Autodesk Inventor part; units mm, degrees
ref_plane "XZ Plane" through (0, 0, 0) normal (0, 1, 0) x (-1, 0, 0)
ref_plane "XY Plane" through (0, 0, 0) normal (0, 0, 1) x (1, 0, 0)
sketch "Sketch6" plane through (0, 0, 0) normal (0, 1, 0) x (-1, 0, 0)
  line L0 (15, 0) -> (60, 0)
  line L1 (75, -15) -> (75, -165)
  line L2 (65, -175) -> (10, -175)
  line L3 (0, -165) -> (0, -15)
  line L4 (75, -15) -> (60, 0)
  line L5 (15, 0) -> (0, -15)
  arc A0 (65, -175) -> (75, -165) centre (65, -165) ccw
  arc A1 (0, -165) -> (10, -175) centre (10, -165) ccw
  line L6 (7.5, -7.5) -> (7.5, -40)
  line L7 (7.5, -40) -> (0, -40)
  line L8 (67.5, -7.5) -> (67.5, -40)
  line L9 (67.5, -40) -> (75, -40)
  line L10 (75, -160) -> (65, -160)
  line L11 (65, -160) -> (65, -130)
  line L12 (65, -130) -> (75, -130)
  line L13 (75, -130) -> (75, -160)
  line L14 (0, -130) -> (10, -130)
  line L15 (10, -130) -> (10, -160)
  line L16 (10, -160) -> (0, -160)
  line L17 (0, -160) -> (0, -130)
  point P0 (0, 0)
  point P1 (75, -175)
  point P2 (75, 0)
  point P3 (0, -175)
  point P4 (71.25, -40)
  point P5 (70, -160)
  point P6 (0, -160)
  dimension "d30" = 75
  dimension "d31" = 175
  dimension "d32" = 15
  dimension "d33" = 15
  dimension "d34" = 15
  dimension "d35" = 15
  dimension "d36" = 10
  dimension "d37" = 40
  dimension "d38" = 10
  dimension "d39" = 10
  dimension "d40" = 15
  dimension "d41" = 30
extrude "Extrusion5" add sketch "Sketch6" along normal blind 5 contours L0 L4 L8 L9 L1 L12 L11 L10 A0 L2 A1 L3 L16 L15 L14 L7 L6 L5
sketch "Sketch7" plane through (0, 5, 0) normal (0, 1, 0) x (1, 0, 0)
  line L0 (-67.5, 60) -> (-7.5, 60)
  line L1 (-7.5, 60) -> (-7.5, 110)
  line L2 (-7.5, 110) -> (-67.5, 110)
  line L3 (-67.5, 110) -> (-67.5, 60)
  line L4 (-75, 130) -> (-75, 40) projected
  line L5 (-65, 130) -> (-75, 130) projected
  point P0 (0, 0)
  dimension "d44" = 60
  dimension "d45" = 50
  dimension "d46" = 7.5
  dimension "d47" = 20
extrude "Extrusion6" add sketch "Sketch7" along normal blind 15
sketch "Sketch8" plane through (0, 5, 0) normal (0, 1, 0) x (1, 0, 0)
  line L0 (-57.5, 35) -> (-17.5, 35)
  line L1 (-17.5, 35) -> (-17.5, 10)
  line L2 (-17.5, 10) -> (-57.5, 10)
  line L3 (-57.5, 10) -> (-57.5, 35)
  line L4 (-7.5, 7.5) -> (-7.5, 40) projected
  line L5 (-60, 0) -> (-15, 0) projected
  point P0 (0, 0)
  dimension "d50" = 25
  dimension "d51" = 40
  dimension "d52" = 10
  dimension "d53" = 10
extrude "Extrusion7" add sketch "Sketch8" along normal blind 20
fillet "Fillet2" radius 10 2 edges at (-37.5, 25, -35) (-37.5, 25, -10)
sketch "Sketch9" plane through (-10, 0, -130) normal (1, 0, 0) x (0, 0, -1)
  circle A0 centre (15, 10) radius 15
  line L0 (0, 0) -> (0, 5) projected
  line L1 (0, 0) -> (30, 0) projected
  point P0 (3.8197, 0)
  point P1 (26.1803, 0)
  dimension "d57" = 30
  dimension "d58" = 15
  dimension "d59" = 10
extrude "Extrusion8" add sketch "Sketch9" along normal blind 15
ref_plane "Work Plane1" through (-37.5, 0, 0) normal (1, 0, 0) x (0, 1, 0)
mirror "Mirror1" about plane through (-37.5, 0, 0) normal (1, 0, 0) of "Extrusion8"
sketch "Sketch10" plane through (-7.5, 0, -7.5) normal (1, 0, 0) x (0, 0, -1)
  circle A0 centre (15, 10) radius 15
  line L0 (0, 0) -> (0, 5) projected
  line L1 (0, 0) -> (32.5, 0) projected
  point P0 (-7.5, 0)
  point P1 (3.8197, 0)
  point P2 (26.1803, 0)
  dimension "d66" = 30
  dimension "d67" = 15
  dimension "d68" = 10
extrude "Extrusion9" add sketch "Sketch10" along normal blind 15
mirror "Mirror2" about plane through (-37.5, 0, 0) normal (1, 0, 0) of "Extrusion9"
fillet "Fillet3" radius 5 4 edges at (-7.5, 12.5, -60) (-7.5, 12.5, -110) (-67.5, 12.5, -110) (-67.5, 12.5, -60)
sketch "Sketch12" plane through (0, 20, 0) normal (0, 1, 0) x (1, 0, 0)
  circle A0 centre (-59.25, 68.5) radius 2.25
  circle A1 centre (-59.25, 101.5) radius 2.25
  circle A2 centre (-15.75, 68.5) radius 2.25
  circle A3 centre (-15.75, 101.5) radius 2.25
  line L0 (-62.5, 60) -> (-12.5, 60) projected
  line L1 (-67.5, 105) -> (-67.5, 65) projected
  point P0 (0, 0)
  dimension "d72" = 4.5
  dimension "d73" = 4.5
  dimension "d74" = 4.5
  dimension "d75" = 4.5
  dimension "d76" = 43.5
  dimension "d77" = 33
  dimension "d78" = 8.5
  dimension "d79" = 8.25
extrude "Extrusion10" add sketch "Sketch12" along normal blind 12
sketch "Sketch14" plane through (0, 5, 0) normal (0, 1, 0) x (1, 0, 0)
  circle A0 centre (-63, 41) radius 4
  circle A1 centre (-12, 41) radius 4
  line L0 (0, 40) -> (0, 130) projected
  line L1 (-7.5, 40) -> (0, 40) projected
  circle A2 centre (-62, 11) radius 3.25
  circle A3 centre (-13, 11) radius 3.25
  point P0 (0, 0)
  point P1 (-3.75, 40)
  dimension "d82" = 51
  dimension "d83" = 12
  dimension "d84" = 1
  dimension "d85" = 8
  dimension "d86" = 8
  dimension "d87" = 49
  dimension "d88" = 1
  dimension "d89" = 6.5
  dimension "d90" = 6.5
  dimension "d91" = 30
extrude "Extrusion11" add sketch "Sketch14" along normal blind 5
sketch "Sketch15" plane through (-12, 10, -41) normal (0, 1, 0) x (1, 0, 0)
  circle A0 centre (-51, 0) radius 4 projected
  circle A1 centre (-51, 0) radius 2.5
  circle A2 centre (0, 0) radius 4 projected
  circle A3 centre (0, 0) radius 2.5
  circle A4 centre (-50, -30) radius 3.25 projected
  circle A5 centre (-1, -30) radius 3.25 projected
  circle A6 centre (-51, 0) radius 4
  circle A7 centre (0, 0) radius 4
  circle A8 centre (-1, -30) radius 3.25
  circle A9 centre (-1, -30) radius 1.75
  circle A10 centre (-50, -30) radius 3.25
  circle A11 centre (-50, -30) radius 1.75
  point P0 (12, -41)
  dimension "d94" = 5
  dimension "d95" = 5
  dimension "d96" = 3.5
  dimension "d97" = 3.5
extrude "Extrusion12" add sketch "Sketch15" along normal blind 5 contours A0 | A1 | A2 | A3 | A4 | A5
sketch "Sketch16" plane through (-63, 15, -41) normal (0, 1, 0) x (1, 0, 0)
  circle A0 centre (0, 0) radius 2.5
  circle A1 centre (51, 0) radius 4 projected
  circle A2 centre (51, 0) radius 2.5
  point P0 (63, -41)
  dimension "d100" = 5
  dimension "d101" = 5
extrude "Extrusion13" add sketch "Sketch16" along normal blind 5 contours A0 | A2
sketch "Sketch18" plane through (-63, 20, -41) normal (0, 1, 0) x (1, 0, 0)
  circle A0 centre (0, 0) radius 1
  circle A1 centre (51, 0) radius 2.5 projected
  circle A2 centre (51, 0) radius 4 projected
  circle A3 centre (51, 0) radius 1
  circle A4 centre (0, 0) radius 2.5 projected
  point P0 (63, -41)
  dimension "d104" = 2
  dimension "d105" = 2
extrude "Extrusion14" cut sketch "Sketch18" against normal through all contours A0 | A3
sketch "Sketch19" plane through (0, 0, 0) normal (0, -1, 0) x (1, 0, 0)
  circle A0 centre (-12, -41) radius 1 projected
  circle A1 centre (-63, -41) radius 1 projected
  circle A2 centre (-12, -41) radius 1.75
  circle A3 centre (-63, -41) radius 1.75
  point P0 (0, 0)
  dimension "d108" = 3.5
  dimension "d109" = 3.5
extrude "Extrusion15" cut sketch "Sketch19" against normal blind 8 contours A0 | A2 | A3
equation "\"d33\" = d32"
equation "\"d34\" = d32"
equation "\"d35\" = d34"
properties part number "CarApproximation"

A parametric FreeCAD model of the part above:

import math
import FreeCAD as App
import Part
import Sketcher


def edges_at(feature, points):
    """Names of the edges that pass closest to the given points."""
    edges = feature.Shape.Edges
    near = lambda p: min(range(len(edges)), key=lambda i: edges[i].distToShape(Part.Vertex(*p))[0])
    return sorted({f"Edge{near(p) + 1}" for p in points})

doc = App.newDocument("Part")
body = doc.addObject("PartDesign::Body", "Body")

sketch1 = body.newObject("Sketcher::SketchObject", "Sketch")
sketch1.AttachmentSupport = (doc.getObject("XZ_Plane"), [""])
sketch1.MapMode = "FlatFace"
sketch1.addGeometry([
    Part.LineSegment(App.Vector(-60, 0, 0), App.Vector(-15, 0, 0)),
    Part.LineSegment(App.Vector(-15, 0, 0), App.Vector(-8, -8, 0)),
    Part.LineSegment(App.Vector(-8, -8, 0), App.Vector(-8, -40, 0)),
    Part.LineSegment(App.Vector(-8, -40, 0), App.Vector(0, -40, 0)),
    Part.LineSegment(App.Vector(0, -40, 0), App.Vector(0, -130, 0)),
    Part.LineSegment(App.Vector(0, -130, 0), App.Vector(-10, -130, 0)),
    Part.LineSegment(App.Vector(-10, -130, 0), App.Vector(-10, -160, 0)),
    Part.LineSegment(App.Vector(-10, -160, 0), App.Vector(0, -160, 0)),
    Part.LineSegment(App.Vector(0, -160, 0), App.Vector(0, -165, 0)),
    Part.ArcOfCircle(Part.Circle(App.Vector(-10, -165, 0), App.Vector(0, 0, 1), 10), math.radians(-90), math.radians(0)),
    Part.LineSegment(App.Vector(-10, -175, 0), App.Vector(-65, -175, 0)),
    Part.ArcOfCircle(Part.Circle(App.Vector(-65, -165, 0), App.Vector(0, 0, 1), 10), math.radians(180), math.radians(270)),
    Part.LineSegment(App.Vector(-75, -165, 0), App.Vector(-75, -160, 0)),
    Part.LineSegment(App.Vector(-75, -160, 0), App.Vector(-65, -160, 0)),
    Part.LineSegment(App.Vector(-65, -160, 0), App.Vector(-65, -130, 0)),
    Part.LineSegment(App.Vector(-65, -130, 0), App.Vector(-75, -130, 0)),
    Part.LineSegment(App.Vector(-75, -130, 0), App.Vector(-75, -40, 0)),
    Part.LineSegment(App.Vector(-75, -40, 0), App.Vector(-68, -40, 0)),
    Part.LineSegment(App.Vector(-68, -40, 0), App.Vector(-68, -8, 0)),
    Part.LineSegment(App.Vector(-68, -8, 0), App.Vector(-60, 0, 0)),
], False)
sketch1.addConstraint([
    Sketcher.Constraint("Coincident", 0, 2, 1, 1),
    Sketcher.Constraint("Coincident", 1, 2, 2, 1),
    Sketcher.Constraint("Coincident", 2, 2, 3, 1),
    Sketcher.Constraint("Coincident", 3, 2, 4, 1),
    Sketcher.Constraint("Coincident", 4, 2, 5, 1),
    Sketcher.Constraint("Coincident", 5, 2, 6, 1),
    Sketcher.Constraint("Coincident", 6, 2, 7, 1),
    Sketcher.Constraint("Coincident", 7, 2, 8, 1),
    Sketcher.Constraint("Tangent", 8, 2, 9, 2),
    Sketcher.Constraint("Tangent", 9, 1, 10, 1),
    Sketcher.Constraint("Tangent", 10, 2, 11, 2),
    Sketcher.Constraint("Tangent", 11, 1, 12, 1),
    Sketcher.Constraint("Coincident", 12, 2, 13, 1),
    Sketcher.Constraint("Coincident", 13, 2, 14, 1),
    Sketcher.Constraint("Coincident", 14, 2, 15, 1),
    Sketcher.Constraint("Coincident", 15, 2, 16, 1),
    Sketcher.Constraint("Coincident", 16, 2, 17, 1),
    Sketcher.Constraint("Coincident", 17, 2, 18, 1),
    Sketcher.Constraint("Coincident", 18, 2, 19, 1),
    Sketcher.Constraint("Coincident", 19, 2, 0, 1),
    Sketcher.Constraint("Horizontal", 0),
    Sketcher.Constraint("Vertical", 2),
    Sketcher.Constraint("Horizontal", 3),
    Sketcher.Constraint("Vertical", 4),
    Sketcher.Constraint("Horizontal", 5),
    Sketcher.Constraint("Vertical", 6),
    Sketcher.Constraint("Horizontal", 7),
    Sketcher.Constraint("Vertical", 8),
    Sketcher.Constraint("Horizontal", 10),
    Sketcher.Constraint("Vertical", 12),
    Sketcher.Constraint("Horizontal", 13),
    Sketcher.Constraint("Vertical", 14),
    Sketcher.Constraint("Horizontal", 15),
    Sketcher.Constraint("Vertical", 16),
    Sketcher.Constraint("Horizontal", 17),
    Sketcher.Constraint("Vertical", 18),
    Sketcher.Constraint("Equal", 9, 11),
    Sketcher.Constraint("PointOnObject", 0, 2, -1),
    Sketcher.Constraint("PointOnObject", 3, 2, -2),
    Sketcher.Constraint("PointOnObject", 7, 2, -2),
    Sketcher.Constraint("Perpendicular", 1, 19),
    Sketcher.Constraint("Horizontal", 7, 2, 12, 2),
    Sketcher.Constraint("Horizontal", 5, 2, 14, 2),
    Sketcher.Constraint("Horizontal", 3, 2, 16, 2),
    Sketcher.Constraint("Horizontal", 1, 2, 18, 2),
    Sketcher.Constraint("Vertical", 9, 3, 5, 2),
    Sketcher.Constraint("Vertical", 10, 2, 13, 2),
    Sketcher.Constraint("Vertical", 12, 2, 15, 2),
    Sketcher.Constraint("Equal", 3, 17),
    Sketcher.Constraint("Equal", 1, 19),
    Sketcher.Constraint("Radius", 9, 10.0),
    Sketcher.Constraint("DistanceY", 6, 2, 6, 1, 30.0),
    Sketcher.Constraint("DistanceX", 0, 2, -1, 1, 15.0),
    Sketcher.Constraint("DistanceY", 2, 2, -1, 1, 40.0),
    Sketcher.Constraint("DistanceY", 9, 1, -1, 1, 175.0),
    Sketcher.Constraint("DistanceX", 11, 1, -1, 1, 75.0),
    Sketcher.Constraint("DistanceY", 9, 1, 6, 2, 15.0),
    Sketcher.Constraint("DistanceX", 3, 1, 3, 2, 7.5),
])
pad1 = body.newObject("PartDesign::Pad", "Pad")
pad1.Profile = sketch1
pad1.Length = 5
pad1.Reversed = True

sketch2 = body.newObject("Sketcher::SketchObject", "Sketch001")
sketch2.AttachmentSupport = (doc.getObject("XZ_Plane"), [""])
sketch2.MapMode = "FlatFace"
sketch2.AttachmentOffset = App.Placement(App.Vector(0, 0, -5), App.Rotation())
sketch2.addGeometry([
    Part.LineSegment(App.Vector(-68, -110, 0), App.Vector(-68, -60, 0)),
    Part.LineSegment(App.Vector(-68, -60, 0), App.Vector(-8, -60, 0)),
    Part.LineSegment(App.Vector(-8, -60, 0), App.Vector(-8, -110, 0)),
    Part.LineSegment(App.Vector(-8, -110, 0), App.Vector(-68, -110, 0)),
], False)
sketch2.addConstraint([
    Sketcher.Constraint("Coincident", 0, 2, 1, 1),
    Sketcher.Constraint("Coincident", 1, 2, 2, 1),
    Sketcher.Constraint("Coincident", 2, 2, 3, 1),
    Sketcher.Constraint("Coincident", 3, 2, 0, 1),
    Sketcher.Constraint("Vertical", 0),
    Sketcher.Constraint("Horizontal", 1),
    Sketcher.Constraint("Vertical", 2),
    Sketcher.Constraint("Horizontal", 3),
    Sketcher.Constraint("DistanceX", 1, 1, 1, 2, 60.0),
    Sketcher.Constraint("DistanceY", 0, 1, 0, 2, 50.0),
    Sketcher.Constraint("DistanceY", 0, 2, -1, 1, 60.0),
    Sketcher.Constraint("DistanceX", 1, 2, -1, 1, 7.5),
])
pad2 = body.newObject("PartDesign::Pad", "Pad001")
pad2.Profile = sketch2
pad2.Length = 15
pad2.Reversed = True

sketch3 = body.newObject("Sketcher::SketchObject", "Sketch002")
sketch3.AttachmentSupport = (doc.getObject("XZ_Plane"), [""])
sketch3.MapMode = "FlatFace"
sketch3.AttachmentOffset = App.Placement(App.Vector(0, 0, -5), App.Rotation())
sketch3.addGeometry([
    Part.LineSegment(App.Vector(-18, -35, 0), App.Vector(-58, -35, 0)),
    Part.LineSegment(App.Vector(-58, -35, 0), App.Vector(-58, -10, 0)),
    Part.LineSegment(App.Vector(-58, -10, 0), App.Vector(-18, -10, 0)),
    Part.LineSegment(App.Vector(-18, -10, 0), App.Vector(-18, -35, 0)),
], False)
sketch3.addConstraint([
    Sketcher.Constraint("Coincident", 0, 2, 1, 1),
    Sketcher.Constraint("Coincident", 1, 2, 2, 1),
    Sketcher.Constraint("Coincident", 2, 2, 3, 1),
    Sketcher.Constraint("Coincident", 3, 2, 0, 1),
    Sketcher.Constraint("Horizontal", 0),
    Sketcher.Constraint("Vertical", 1),
    Sketcher.Constraint("Horizontal", 2),
    Sketcher.Constraint("Vertical", 3),
    Sketcher.Constraint("DistanceX", 0, 2, 0, 1, 40.0),
    Sketcher.Constraint("DistanceY", 1, 1, 1, 2, 25.0),
    Sketcher.Constraint("DistanceY", 1, 2, -1, 1, 10.0),
    Sketcher.Constraint("DistanceX", 0, 2, -1, 1, 57.5),
])
pad3 = body.newObject("PartDesign::Pad", "Pad002")
pad3.Profile = sketch3
pad3.Length = 20
pad3.Reversed = True
doc.recompute()

fillet = body.newObject("PartDesign::Fillet", "Fillet")
fillet.Base = (pad3, edges_at(pad3, [(-37.5, 25, -35), (-37.5, 25, -10)]))
fillet.Radius = 10

sketch4 = body.newObject("Sketcher::SketchObject", "Sketch003")
sketch4.AttachmentSupport = (doc.getObject("YZ_Plane"), [""])
sketch4.MapMode = "FlatFace"
sketch4.AttachmentOffset = App.Placement(App.Vector(0, 0, -10), App.Rotation())
sketch4.addGeometry(Part.Circle(App.Vector(10, -145, 0), App.Vector(0, 0, 1), 15), False)
sketch4.addConstraint([
    Sketcher.Constraint("Diameter", 0, 30.0),
    Sketcher.Constraint("DistanceX", -1, 1, 0, 3, 10.0),
    Sketcher.Constraint("DistanceY", 0, 3, -1, 1, 145.0),
])
pad4 = body.newObject("PartDesign::Pad", "Pad003")
pad4.Profile = sketch4
pad4.Length = 15
doc.recompute()

datumplane = body.newObject("PartDesign::Plane", "DatumPlane")
datumplane.AttachmentSupport = (doc.getObject("YZ_Plane"), [""])
datumplane.MapMode = "FlatFace"
datumplane.AttachmentOffset = App.Placement(App.Vector(0, 0, -37.5), App.Rotation())
mirrored = body.newObject("PartDesign::Mirrored", "Mirrored")
mirrored.Originals = [pad4]
mirrored.MirrorPlane = (datumplane, [""])
body.Tip = mirrored

sketch5 = body.newObject("Sketcher::SketchObject", "Sketch004")
sketch5.AttachmentSupport = (doc.getObject("YZ_Plane"), [""])
sketch5.MapMode = "FlatFace"
sketch5.AttachmentOffset = App.Placement(App.Vector(0, 0, -7.5), App.Rotation())
sketch5.addGeometry(Part.Circle(App.Vector(10, -22, 0), App.Vector(0, 0, 1), 15), False)
sketch5.addConstraint([
    Sketcher.Constraint("Diameter", 0, 30.0),
    Sketcher.Constraint("DistanceX", -1, 1, 0, 3, 10.0),
    Sketcher.Constraint("DistanceY", 0, 3, -1, 1, 22.5),
])
pad5 = body.newObject("PartDesign::Pad", "Pad004")
pad5.Profile = sketch5
pad5.Length = 15
doc.recompute()

datumplane2 = body.newObject("PartDesign::Plane", "DatumPlane001")
datumplane2.AttachmentSupport = (doc.getObject("YZ_Plane"), [""])
datumplane2.MapMode = "FlatFace"
datumplane2.AttachmentOffset = App.Placement(App.Vector(0, 0, -37.5), App.Rotation())
mirrored2 = body.newObject("PartDesign::Mirrored", "Mirrored001")
mirrored2.Originals = [pad5]
mirrored2.MirrorPlane = (datumplane2, [""])
body.Tip = mirrored2
doc.recompute()

fillet2 = body.newObject("PartDesign::Fillet", "Fillet001")
fillet2.Base = (mirrored2, edges_at(mirrored2, [
    (-7.5, 12.5, -60),
    (-7.5, 12.5, -110),
    (-67.5, 12.5, -110),
    (-67.5, 12.5, -60),
]))
fillet2.Radius = 5

sketch6 = body.newObject("Sketcher::SketchObject", "Sketch005")
sketch6.AttachmentSupport = (doc.getObject("XZ_Plane"), [""])
sketch6.MapMode = "FlatFace"
sketch6.AttachmentOffset = App.Placement(App.Vector(0, 0, -20), App.Rotation())
sketch6.addGeometry([
    Part.Circle(App.Vector(-59.2, -68.5, 0), App.Vector(0, 0, 1), 2.2),
    Part.Circle(App.Vector(-59.2, -101.5, 0), App.Vector(0, 0, 1), 2.2),
    Part.Circle(App.Vector(-15.8, -68.5, 0), App.Vector(0, 0, 1), 2.2),
    Part.Circle(App.Vector(-15.8, -101.5, 0), App.Vector(0, 0, 1), 2.2),
], False)
sketch6.addConstraint([
    Sketcher.Constraint("Equal", 0, 1),
    Sketcher.Constraint("Equal", 1, 2),
    Sketcher.Constraint("Equal", 2, 3),
    Sketcher.Constraint("Horizontal", 0, 3, 2, 3),
    Sketcher.Constraint("Horizontal", 1, 3, 3, 3),
    Sketcher.Constraint("Vertical", 0, 3, 1, 3),
    Sketcher.Constraint("Vertical", 2, 3, 3, 3),
    Sketcher.Constraint("Diameter", 0, 4.5),
    Sketcher.Constraint("DistanceY", 1, 3, 0, 3, 33.0),
    Sketcher.Constraint("DistanceX", 0, 3, 2, 3, 43.5),
    Sketcher.Constraint("DistanceY", 0, 3, -1, 1, 68.5),
    Sketcher.Constraint("DistanceX", 0, 3, -1, 1, 59.25),
])
pad6 = body.newObject("PartDesign::Pad", "Pad005")
pad6.Profile = sketch6
pad6.Length = 12
pad6.Reversed = True

sketch7 = body.newObject("Sketcher::SketchObject", "Sketch006")
sketch7.AttachmentSupport = (doc.getObject("XZ_Plane"), [""])
sketch7.MapMode = "FlatFace"
sketch7.AttachmentOffset = App.Placement(App.Vector(0, 0, -5), App.Rotation())
sketch7.addGeometry([
    Part.Circle(App.Vector(-63, -41, 0), App.Vector(0, 0, 1), 4),
    Part.Circle(App.Vector(-12, -41, 0), App.Vector(0, 0, 1), 4),
    Part.Circle(App.Vector(-62, -11, 0), App.Vector(0, 0, 1), 3.2),
    Part.Circle(App.Vector(-13, -11, 0), App.Vector(0, 0, 1), 3.2),
], False)
sketch7.addConstraint([
    Sketcher.Constraint("Equal", 0, 1),
    Sketcher.Constraint("Equal", 2, 3),
    Sketcher.Constraint("Horizontal", 0, 3, 1, 3),
    Sketcher.Constraint("Horizontal", 2, 3, 3, 3),
    Sketcher.Constraint("Diameter", 0, 8.0),
    Sketcher.Constraint("Diameter", 2, 6.5),
    Sketcher.Constraint("DistanceX", 1, 3, -1, 1, 12.0),
    Sketcher.Constraint("DistanceX", 0, 3, 1, 3, 51.0),
    Sketcher.Constraint("DistanceX", 0, 3, 2, 3, 1.0),
    Sketcher.Constraint("DistanceY", 0, 3, 2, 3, 30.0),
    Sketcher.Constraint("DistanceX", 3, 3, 1, 3, 1.0),
    Sketcher.Constraint("DistanceY", 0, 3, -1, 1, 41.0),
])
pad7 = body.newObject("PartDesign::Pad", "Pad006")
pad7.Profile = sketch7
pad7.Length = 5
pad7.Reversed = True

sketch8 = body.newObject("Sketcher::SketchObject", "Sketch007")
sketch8.AttachmentSupport = (doc.getObject("XZ_Plane"), [""])
sketch8.MapMode = "FlatFace"
sketch8.AttachmentOffset = App.Placement(App.Vector(0, 0, -10), App.Rotation())
sketch8.addGeometry([
    Part.Circle(App.Vector(-63, -41, 0), App.Vector(0, 0, 1), 4),
    Part.Circle(App.Vector(-12, -41, 0), App.Vector(0, 0, 1), 4),
    Part.Circle(App.Vector(-62, -11, 0), App.Vector(0, 0, 1), 3.2),
    Part.Circle(App.Vector(-62, -11, 0), App.Vector(0, 0, 1), 1.8),
    Part.Circle(App.Vector(-13, -11, 0), App.Vector(0, 0, 1), 3.2),
    Part.Circle(App.Vector(-13, -11, 0), App.Vector(0, 0, 1), 1.8),
], False)
sketch8.addConstraint([
    Sketcher.Constraint("Coincident", 3, 3, 2, 3),
    Sketcher.Constraint("Coincident", 5, 3, 4, 3),
    Sketcher.Constraint("Equal", 0, 1),
    Sketcher.Constraint("Equal", 2, 4),
    Sketcher.Constraint("Equal", 3, 5),
    Sketcher.Constraint("Horizontal", 0, 3, 1, 3),
    Sketcher.Constraint("Horizontal", 3, 3, 4, 3),
    Sketcher.Constraint("Diameter", 3, 3.5),
    Sketcher.Constraint("Diameter", 0, 8.0),
    Sketcher.Constraint("Diameter", 2, 6.5),
    Sketcher.Constraint("DistanceX", 0, 3, -1, 1, 63.0),
    Sketcher.Constraint("DistanceY", 0, 3, -1, 1, 41.0),
    Sketcher.Constraint("DistanceX", 1, 3, -1, 1, 12.0),
    Sketcher.Constraint("DistanceX", 2, 3, -1, 1, 62.0),
    Sketcher.Constraint("DistanceY", 2, 3, -1, 1, 11.0),
    Sketcher.Constraint("DistanceX", 4, 3, -1, 1, 13.0),
])
pad8 = body.newObject("PartDesign::Pad", "Pad007")
pad8.Profile = sketch8
pad8.Length = 5
pad8.Reversed = True

sketch9 = body.newObject("Sketcher::SketchObject", "Sketch008")
sketch9.AttachmentSupport = (doc.getObject("XZ_Plane"), [""])
sketch9.MapMode = "FlatFace"
sketch9.AttachmentOffset = App.Placement(App.Vector(0, 0, -15), App.Rotation())
sketch9.addGeometry([
    Part.Circle(App.Vector(-63, -41, 0), App.Vector(0, 0, 1), 2.5),
    Part.Circle(App.Vector(-12, -41, 0), App.Vector(0, 0, 1), 2.5),
], False)
sketch9.addConstraint([
    Sketcher.Constraint("Equal", 0, 1),
    Sketcher.Constraint("Horizontal", 0, 3, 1, 3),
    Sketcher.Constraint("Diameter", 0, 5.0),
    Sketcher.Constraint("DistanceX", 0, 3, -1, 1, 63.0),
    Sketcher.Constraint("DistanceY", 0, 3, -1, 1, 41.0),
    Sketcher.Constraint("DistanceX", 1, 3, -1, 1, 12.0),
])
pad9 = body.newObject("PartDesign::Pad", "Pad008")
pad9.Profile = sketch9
pad9.Length = 5
pad9.Reversed = True

sketch10 = body.newObject("Sketcher::SketchObject", "Sketch009")
sketch10.AttachmentSupport = (doc.getObject("XZ_Plane"), [""])
sketch10.MapMode = "FlatFace"
sketch10.AttachmentOffset = App.Placement(App.Vector(0, 0, -20), App.Rotation())
sketch10.addGeometry([
    Part.Circle(App.Vector(-63, -41, 0), App.Vector(0, 0, 1), 1),
    Part.Circle(App.Vector(-12, -41, 0), App.Vector(0, 0, 1), 1),
], False)
sketch10.addConstraint([
    Sketcher.Constraint("Equal", 0, 1),
    Sketcher.Constraint("Horizontal", 0, 3, 1, 3),
    Sketcher.Constraint("Diameter", 0, 2.0),
    Sketcher.Constraint("DistanceX", 0, 3, -1, 1, 63.0),
    Sketcher.Constraint("DistanceY", 0, 3, -1, 1, 41.0),
    Sketcher.Constraint("DistanceX", 1, 3, -1, 1, 12.0),
])
pocket1 = body.newObject("PartDesign::Pocket", "Pocket")
pocket1.Profile = sketch10
pocket1.Type = "ThroughAll"
pocket1.Reversed = True

sketch11 = body.newObject("Sketcher::SketchObject", "Sketch010")
sketch11.AttachmentSupport = (doc.getObject("XZ_Plane"), [""])
sketch11.MapMode = "FlatFace"
sketch11.addGeometry([
    Part.Circle(App.Vector(-12, -41, 0), App.Vector(0, 0, 1), 1.8),
    Part.Circle(App.Vector(-63, -41, 0), App.Vector(0, 0, 1), 1.8),
    Part.Circle(App.Vector(-63, -41, 0), App.Vector(0, 0, 1), 1),
], False)
sketch11.addConstraint([
    Sketcher.Constraint("Coincident", 2, 3, 1, 3),
    Sketcher.Constraint("Equal", 0, 1),
    Sketcher.Constraint("Horizontal", 0, 3, 1, 3),
    Sketcher.Constraint("Diameter", 0, 3.5),
    Sketcher.Constraint("Diameter", 2, 2.0),
    Sketcher.Constraint("DistanceX", 0, 3, -1, 1, 12.0),
    Sketcher.Constraint("DistanceY", 0, 3, -1, 1, 41.0),
    Sketcher.Constraint("DistanceX", 1, 3, -1, 1, 63.0),
])
pocket2 = body.newObject("PartDesign::Pocket", "Pocket001")
pocket2.Profile = sketch11
pocket2.Length = 8

doc.recompute()
